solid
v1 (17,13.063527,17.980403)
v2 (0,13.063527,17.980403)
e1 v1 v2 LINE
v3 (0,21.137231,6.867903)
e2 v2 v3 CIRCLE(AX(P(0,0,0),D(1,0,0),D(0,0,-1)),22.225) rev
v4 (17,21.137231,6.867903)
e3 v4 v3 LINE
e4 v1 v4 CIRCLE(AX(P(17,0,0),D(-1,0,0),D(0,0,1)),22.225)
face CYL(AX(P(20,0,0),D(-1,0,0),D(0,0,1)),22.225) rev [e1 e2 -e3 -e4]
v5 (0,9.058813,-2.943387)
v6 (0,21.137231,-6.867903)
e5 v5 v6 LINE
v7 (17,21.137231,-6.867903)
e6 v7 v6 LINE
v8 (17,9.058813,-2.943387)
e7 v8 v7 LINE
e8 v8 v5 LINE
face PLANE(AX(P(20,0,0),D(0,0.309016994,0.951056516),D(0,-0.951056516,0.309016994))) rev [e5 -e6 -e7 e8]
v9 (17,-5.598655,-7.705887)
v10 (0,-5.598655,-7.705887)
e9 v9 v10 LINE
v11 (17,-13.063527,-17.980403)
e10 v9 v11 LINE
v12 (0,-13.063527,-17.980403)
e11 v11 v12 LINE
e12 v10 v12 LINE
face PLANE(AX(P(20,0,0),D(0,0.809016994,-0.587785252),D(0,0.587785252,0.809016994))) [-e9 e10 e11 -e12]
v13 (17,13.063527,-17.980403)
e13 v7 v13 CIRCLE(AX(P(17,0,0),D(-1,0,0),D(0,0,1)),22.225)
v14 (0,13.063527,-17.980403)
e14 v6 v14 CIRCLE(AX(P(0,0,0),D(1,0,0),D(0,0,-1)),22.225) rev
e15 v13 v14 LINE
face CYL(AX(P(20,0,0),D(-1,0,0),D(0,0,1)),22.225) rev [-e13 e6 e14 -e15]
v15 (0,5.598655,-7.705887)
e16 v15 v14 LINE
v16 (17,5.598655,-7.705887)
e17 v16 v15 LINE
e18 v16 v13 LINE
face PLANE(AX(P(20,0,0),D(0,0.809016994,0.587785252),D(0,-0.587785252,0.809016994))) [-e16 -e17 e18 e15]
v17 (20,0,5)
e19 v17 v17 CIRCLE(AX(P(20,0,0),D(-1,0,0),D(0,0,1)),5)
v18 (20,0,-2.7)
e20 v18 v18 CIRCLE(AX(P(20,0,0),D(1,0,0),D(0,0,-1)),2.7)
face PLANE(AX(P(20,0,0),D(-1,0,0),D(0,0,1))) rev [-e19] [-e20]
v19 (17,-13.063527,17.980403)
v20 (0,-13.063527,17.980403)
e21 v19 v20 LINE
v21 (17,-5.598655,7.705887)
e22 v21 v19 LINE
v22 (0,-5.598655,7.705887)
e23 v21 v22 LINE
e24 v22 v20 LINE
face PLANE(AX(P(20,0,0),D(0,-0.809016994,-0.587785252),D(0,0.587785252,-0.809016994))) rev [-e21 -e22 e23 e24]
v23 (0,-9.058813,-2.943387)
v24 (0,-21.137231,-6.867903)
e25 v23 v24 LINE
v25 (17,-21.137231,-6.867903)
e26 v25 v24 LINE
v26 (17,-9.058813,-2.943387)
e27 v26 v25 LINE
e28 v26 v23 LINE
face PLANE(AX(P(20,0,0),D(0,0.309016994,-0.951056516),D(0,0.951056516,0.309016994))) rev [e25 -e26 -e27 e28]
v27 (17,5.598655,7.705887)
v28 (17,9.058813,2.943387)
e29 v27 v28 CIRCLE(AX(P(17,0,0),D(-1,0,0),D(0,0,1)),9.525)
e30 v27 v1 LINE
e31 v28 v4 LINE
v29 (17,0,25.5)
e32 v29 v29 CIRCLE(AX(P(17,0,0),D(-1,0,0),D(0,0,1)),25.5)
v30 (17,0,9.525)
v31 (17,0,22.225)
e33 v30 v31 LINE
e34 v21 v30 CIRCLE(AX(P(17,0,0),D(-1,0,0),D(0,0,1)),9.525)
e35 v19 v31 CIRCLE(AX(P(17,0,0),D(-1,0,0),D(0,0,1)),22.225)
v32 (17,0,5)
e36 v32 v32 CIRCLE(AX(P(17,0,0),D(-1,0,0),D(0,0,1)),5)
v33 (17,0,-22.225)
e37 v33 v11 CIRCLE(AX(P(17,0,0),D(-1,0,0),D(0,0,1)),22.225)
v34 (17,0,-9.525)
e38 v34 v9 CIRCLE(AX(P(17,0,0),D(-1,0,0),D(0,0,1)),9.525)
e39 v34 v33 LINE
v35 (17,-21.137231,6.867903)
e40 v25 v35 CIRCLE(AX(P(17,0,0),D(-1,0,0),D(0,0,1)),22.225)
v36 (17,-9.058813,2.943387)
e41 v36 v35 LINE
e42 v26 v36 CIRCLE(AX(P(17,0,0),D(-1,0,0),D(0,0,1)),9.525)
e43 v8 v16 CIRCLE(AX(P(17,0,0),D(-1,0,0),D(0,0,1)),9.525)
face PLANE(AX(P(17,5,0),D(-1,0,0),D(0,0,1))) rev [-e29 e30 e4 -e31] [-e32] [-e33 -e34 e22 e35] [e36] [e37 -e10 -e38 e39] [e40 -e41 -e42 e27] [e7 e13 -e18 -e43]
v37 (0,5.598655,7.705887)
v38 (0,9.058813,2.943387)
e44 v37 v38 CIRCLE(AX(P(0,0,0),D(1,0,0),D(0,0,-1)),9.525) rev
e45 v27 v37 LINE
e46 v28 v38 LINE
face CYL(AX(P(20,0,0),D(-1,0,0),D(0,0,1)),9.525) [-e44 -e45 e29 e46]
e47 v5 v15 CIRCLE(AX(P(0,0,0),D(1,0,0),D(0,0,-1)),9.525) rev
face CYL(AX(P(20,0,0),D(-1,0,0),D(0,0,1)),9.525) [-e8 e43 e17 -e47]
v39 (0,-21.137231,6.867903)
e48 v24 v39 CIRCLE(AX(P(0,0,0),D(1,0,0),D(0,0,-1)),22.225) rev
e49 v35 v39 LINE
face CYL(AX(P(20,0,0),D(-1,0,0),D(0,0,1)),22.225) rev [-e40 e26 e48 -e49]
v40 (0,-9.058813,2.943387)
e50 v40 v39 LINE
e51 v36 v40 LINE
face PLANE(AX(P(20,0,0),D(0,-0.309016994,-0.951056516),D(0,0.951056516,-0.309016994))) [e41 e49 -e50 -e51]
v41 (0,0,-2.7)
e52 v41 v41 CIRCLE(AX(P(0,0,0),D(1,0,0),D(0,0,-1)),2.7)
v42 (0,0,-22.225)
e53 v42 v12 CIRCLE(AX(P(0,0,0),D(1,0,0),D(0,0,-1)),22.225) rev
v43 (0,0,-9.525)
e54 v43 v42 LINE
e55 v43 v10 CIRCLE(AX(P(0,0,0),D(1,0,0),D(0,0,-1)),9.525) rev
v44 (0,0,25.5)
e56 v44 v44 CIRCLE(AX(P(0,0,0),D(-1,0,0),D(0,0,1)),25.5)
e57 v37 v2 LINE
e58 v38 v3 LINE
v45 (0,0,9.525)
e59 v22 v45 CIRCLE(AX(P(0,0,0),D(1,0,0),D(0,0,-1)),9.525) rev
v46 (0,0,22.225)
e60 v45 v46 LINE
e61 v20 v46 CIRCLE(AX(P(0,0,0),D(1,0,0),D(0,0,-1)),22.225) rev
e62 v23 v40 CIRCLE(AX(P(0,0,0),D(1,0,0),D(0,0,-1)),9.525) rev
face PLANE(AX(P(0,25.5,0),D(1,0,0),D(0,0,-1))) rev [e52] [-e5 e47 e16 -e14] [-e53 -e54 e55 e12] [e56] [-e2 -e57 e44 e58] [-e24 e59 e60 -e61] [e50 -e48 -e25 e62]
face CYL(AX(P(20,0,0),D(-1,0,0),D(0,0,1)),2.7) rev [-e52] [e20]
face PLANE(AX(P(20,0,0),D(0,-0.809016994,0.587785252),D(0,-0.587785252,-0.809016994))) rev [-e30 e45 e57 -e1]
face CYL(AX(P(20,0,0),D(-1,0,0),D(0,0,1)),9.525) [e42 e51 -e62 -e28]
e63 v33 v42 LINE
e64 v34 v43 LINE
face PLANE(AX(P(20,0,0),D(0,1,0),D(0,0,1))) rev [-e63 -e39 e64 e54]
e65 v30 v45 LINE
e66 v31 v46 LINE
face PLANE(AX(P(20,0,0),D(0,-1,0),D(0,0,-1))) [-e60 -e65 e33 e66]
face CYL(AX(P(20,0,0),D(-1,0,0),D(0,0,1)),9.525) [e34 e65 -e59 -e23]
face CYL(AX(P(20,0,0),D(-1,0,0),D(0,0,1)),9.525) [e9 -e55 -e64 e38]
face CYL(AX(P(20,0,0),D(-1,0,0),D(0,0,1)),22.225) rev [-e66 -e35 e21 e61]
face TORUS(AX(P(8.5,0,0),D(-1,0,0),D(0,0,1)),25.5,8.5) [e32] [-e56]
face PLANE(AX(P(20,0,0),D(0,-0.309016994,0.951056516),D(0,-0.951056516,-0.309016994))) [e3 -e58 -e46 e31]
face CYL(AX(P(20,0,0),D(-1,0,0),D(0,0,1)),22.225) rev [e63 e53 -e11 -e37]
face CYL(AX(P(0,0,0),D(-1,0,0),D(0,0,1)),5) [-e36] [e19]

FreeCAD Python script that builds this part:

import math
import FreeCAD as App
import Part
import Sketcher

V = App.Vector
Q = App.Units.Quantity

doc = App.newDocument("Part")
body = doc.addObject("PartDesign::Body", "Body")

# Sketch on XY plane
sketch1 = body.newObject("Sketcher::SketchObject", "Sketch")
sketch1.AttachmentSupport = (doc.getObject("XY_Plane"), [""])
sketch1.MapMode = "FlatFace"
sketch1.addGeometry([
    Part.LineSegment(V(0, 25.5, 0), V(0, 0, 0)),  # 0
    Part.LineSegment(V(0, 0, 0), V(20, 0, 0)),  # 1
    Part.LineSegment(V(20, 0, 0), V(20, 5, 0)),  # 2
    Part.LineSegment(V(20, 5, 0), V(17, 5, 0)),  # 3
    Part.LineSegment(V(17, 5, 0), V(17, 25.5, 0)),  # 4
    Part.ArcOfCircle(Part.Circle(V(8.5, 25.5, 0), V(0, 0, 1), 8.5), math.radians(0), math.radians(180)),  # 5
], False)
sketch1.addConstraint([
    Sketcher.Constraint("Coincident", 0, 2, 1, 1),
    Sketcher.Constraint("Coincident", 1, 2, 2, 1),
    Sketcher.Constraint("Coincident", 2, 2, 3, 1),
    Sketcher.Constraint("Coincident", 3, 2, 4, 1),
    Sketcher.Constraint("Tangent", 4, 2, 5, 1),
    Sketcher.Constraint("Tangent", 5, 2, 0, 1),
    Sketcher.Constraint("Vertical", 0),
    Sketcher.Constraint("Horizontal", 1),
    Sketcher.Constraint("Vertical", 2),
    Sketcher.Constraint("Horizontal", 3),
    Sketcher.Constraint("Vertical", 4),
    Sketcher.Constraint("Coincident", 0, 2, -1, 1),
    Sketcher.Constraint("Radius", 5, 8.5),
    Sketcher.Constraint("DistanceX", 1, 1, 1, 2, 20.0),
    Sketcher.Constraint("DistanceY", 2, 1, 2, 2, 5.0),
    Sketcher.Constraint("DistanceY", 0, 2, 0, 1, 25.5),
])
revolution = body.newObject("PartDesign::Revolution", "Revolution")
revolution.Profile = sketch1
revolution.ReferenceAxis = (sketch1, ["H_Axis"])
revolution.Angle = 360

# Sketch on YZ plane
sketch2 = body.newObject("Sketcher::SketchObject", "Sketch001")
sketch2.AttachmentSupport = (doc.getObject("YZ_Plane"), [""])
sketch2.MapMode = "FlatFace"
sketch2.addGeometry(Part.Circle(V(0, 0, 0), V(0, 0, 1), 2.7), False)
sketch2.addConstraint([
    Sketcher.Constraint("Coincident", 0, 3, -1, 1),
    Sketcher.Constraint("Diameter", 0, 5.4),
])
pocket1 = body.newObject("PartDesign::Pocket", "Pocket")
pocket1.Profile = sketch2
pocket1.Type = "ThroughAll"
pocket1.Reversed = True

# Sketch on YZ plane
sketch3 = body.newObject("Sketcher::SketchObject", "Sketch002")
sketch3.AttachmentSupport = (doc.getObject("YZ_Plane"), [""])
sketch3.MapMode = "FlatFace"
sketch3.addGeometry([
    Part.LineSegment(V(13.063527, 17.980403, 0), V(5.598655, 7.705887, 0)),  # 0
    Part.ArcOfCircle(Part.Circle(V(0, 0, 0), V(0, 0, 1), 9.525), math.radians(18), math.radians(54)),  # 1
    Part.LineSegment(V(9.058813, 2.943387, 0), V(21.137231, 6.867903, 0)),  # 2
    Part.ArcOfCircle(Part.Circle(V(0, 0, 0), V(0, 0, 1), 22.225), math.radians(18), math.radians(54)),  # 3
    Part.LineSegment(V(21.137231, -6.867903, 0), V(9.058813, -2.943387, 0)),  # 4
    Part.ArcOfCircle(Part.Circle(V(0, 0, 0), V(0, 0, 1), 9.525), math.radians(-54), math.radians(-18)),  # 5
    Part.LineSegment(V(5.598655, -7.705887, 0), V(13.063527, -17.980403, 0)),  # 6
    Part.ArcOfCircle(Part.Circle(V(0, 0, 0), V(0, 0, 1), 22.225), math.radians(-54), math.radians(-18)),  # 7
    Part.LineSegment(V(0, -22.225, 0), V(0, -9.525, 0)),  # 8
    Part.ArcOfCircle(Part.Circle(V(0, 0, 0), V(0, 0, 1), 9.525), math.radians(-126), math.radians(-90)),  # 9
    Part.LineSegment(V(-5.598655, -7.705887, 0), V(-13.063527, -17.980403, 0)),  # 10
    Part.ArcOfCircle(Part.Circle(V(0, 0, 0), V(0, 0, 1), 22.225), math.radians(-126), math.radians(-90)),  # 11
    Part.LineSegment(V(-21.137231, -6.867903, 0), V(-9.058813, -2.943387, 0)),  # 12
    Part.ArcOfCircle(Part.Circle(V(0, 0, 0), V(0, 0, 1), 9.525), math.radians(162), math.radians(198)),  # 13
    Part.LineSegment(V(-9.058813, 2.943387, 0), V(-21.137231, 6.867903, 0)),  # 14
    Part.ArcOfCircle(Part.Circle(V(0, 0, 0), V(0, 0, 1), 22.225), math.radians(162), math.radians(198)),  # 15
    Part.LineSegment(V(-13.063527, 17.980403, 0), V(-5.598655, 7.705887, 0)),  # 16
    Part.ArcOfCircle(Part.Circle(V(0, 0, 0), V(0, 0, 1), 9.525), math.radians(90), math.radians(126)),  # 17
    Part.LineSegment(V(0, 9.525, 0), V(0, 22.225, 0)),  # 18
    Part.ArcOfCircle(Part.Circle(V(0, 0, 0), V(0, 0, 1), 22.225), math.radians(90), math.radians(126)),  # 19
], False)
sketch3.addConstraint([
    Sketcher.Constraint("Coincident", 0, 2, 1, 2),
    Sketcher.Constraint("Coincident", 1, 1, 2, 1),
    Sketcher.Constraint("Coincident", 2, 2, 3, 1),
    Sketcher.Constraint("Coincident", 3, 2, 0, 1),
    Sketcher.Constraint("Coincident", 4, 2, 5, 2),
    Sketcher.Constraint("Coincident", 5, 1, 6, 1),
    Sketcher.Constraint("Coincident", 6, 2, 7, 1),
    Sketcher.Constraint("Coincident", 7, 2, 4, 1),
    Sketcher.Constraint("Coincident", 8, 2, 9, 2),
    Sketcher.Constraint("Coincident", 9, 1, 10, 1),
    Sketcher.Constraint("Coincident", 10, 2, 11, 1),
    Sketcher.Constraint("Coincident", 11, 2, 8, 1),
    Sketcher.Constraint("Coincident", 12, 2, 13, 2),
    Sketcher.Constraint("Coincident", 13, 1, 14, 1),
    Sketcher.Constraint("Coincident", 14, 2, 15, 1),
    Sketcher.Constraint("Coincident", 15, 2, 12, 1),
    Sketcher.Constraint("Coincident", 16, 2, 17, 2),
    Sketcher.Constraint("Coincident", 17, 1, 18, 1),
    Sketcher.Constraint("Coincident", 18, 2, 19, 1),
    Sketcher.Constraint("Coincident", 19, 2, 16, 1),
    Sketcher.Constraint("Vertical", 8),
    Sketcher.Constraint("Vertical", 18),
    Sketcher.Constraint("Coincident", 1, 3, -1, 1),
    Sketcher.Constraint("Coincident", 3, 3, -1, 1),
    Sketcher.Constraint("Coincident", 5, 3, -1, 1),
    Sketcher.Constraint("Coincident", 7, 3, -1, 1),
    Sketcher.Constraint("Coincident", 9, 3, -1, 1),
    Sketcher.Constraint("Coincident", 11, 3, -1, 1),
    Sketcher.Constraint("Coincident", 13, 3, -1, 1),
    Sketcher.Constraint("Coincident", 15, 3, -1, 1),
    Sketcher.Constraint("Coincident", 17, 3, -1, 1),
    Sketcher.Constraint("Coincident", 19, 3, -1, 1),
    Sketcher.Constraint("Equal", 1, 5),
    Sketcher.Constraint("Equal", 3, 7),
    Sketcher.Constraint("Equal", 5, 9),
    Sketcher.Constraint("Equal", 7, 11),
    Sketcher.Constraint("Equal", 9, 13),
    Sketcher.Constraint("Equal", 11, 15),
    Sketcher.Constraint("Equal", 13, 17),
    Sketcher.Constraint("Equal", 15, 19),
    Sketcher.Constraint("PointOnObject", 8, 2, -2),
    Sketcher.Constraint("PointOnObject", 17, 1, -2),
    Sketcher.Constraint("Parallel", 0, 10),
    Sketcher.Constraint("Parallel", 2, 12),
    Sketcher.Constraint("Parallel", 4, 14),
    Sketcher.Constraint("Parallel", 6, 16),
    Sketcher.Constraint("Horizontal", 5, 1, 9, 1),
    Sketcher.Constraint("Horizontal", 6, 2, 10, 2),
    Sketcher.Constraint("Horizontal", 4, 2, 12, 2),
    Sketcher.Constraint("Horizontal", 1, 1, 13, 1),
    Sketcher.Constraint("Horizontal", 2, 2, 14, 2),
    Sketcher.Constraint("Horizontal", 0, 2, 16, 2),
    Sketcher.Constraint("Vertical", 1, 1, 4, 2),
    Sketcher.Constraint("Vertical", 0, 2, 5, 1),
    Sketcher.Constraint("Angle", 0, Q("-126 deg")),
    Sketcher.Constraint("Angle", 2, Q("18 deg")),
    Sketcher.Constraint("DistanceY", 8, 1, 8, 2, 12.7),
    Sketcher.Constraint("Radius", 1, 9.525),
    Sketcher.Constraint("DistanceY", 1, 1, 0, 2, 4.7625),
    Sketcher.Constraint("DistanceX", -1, 1, 2, 2, 21.137231),
])
pocket2 = body.newObject("PartDesign::Pocket", "Pocket001")
pocket2.Profile = sketch3
pocket2.Type = "ThroughAll"
pocket2.Reversed = True

doc.recompute()
